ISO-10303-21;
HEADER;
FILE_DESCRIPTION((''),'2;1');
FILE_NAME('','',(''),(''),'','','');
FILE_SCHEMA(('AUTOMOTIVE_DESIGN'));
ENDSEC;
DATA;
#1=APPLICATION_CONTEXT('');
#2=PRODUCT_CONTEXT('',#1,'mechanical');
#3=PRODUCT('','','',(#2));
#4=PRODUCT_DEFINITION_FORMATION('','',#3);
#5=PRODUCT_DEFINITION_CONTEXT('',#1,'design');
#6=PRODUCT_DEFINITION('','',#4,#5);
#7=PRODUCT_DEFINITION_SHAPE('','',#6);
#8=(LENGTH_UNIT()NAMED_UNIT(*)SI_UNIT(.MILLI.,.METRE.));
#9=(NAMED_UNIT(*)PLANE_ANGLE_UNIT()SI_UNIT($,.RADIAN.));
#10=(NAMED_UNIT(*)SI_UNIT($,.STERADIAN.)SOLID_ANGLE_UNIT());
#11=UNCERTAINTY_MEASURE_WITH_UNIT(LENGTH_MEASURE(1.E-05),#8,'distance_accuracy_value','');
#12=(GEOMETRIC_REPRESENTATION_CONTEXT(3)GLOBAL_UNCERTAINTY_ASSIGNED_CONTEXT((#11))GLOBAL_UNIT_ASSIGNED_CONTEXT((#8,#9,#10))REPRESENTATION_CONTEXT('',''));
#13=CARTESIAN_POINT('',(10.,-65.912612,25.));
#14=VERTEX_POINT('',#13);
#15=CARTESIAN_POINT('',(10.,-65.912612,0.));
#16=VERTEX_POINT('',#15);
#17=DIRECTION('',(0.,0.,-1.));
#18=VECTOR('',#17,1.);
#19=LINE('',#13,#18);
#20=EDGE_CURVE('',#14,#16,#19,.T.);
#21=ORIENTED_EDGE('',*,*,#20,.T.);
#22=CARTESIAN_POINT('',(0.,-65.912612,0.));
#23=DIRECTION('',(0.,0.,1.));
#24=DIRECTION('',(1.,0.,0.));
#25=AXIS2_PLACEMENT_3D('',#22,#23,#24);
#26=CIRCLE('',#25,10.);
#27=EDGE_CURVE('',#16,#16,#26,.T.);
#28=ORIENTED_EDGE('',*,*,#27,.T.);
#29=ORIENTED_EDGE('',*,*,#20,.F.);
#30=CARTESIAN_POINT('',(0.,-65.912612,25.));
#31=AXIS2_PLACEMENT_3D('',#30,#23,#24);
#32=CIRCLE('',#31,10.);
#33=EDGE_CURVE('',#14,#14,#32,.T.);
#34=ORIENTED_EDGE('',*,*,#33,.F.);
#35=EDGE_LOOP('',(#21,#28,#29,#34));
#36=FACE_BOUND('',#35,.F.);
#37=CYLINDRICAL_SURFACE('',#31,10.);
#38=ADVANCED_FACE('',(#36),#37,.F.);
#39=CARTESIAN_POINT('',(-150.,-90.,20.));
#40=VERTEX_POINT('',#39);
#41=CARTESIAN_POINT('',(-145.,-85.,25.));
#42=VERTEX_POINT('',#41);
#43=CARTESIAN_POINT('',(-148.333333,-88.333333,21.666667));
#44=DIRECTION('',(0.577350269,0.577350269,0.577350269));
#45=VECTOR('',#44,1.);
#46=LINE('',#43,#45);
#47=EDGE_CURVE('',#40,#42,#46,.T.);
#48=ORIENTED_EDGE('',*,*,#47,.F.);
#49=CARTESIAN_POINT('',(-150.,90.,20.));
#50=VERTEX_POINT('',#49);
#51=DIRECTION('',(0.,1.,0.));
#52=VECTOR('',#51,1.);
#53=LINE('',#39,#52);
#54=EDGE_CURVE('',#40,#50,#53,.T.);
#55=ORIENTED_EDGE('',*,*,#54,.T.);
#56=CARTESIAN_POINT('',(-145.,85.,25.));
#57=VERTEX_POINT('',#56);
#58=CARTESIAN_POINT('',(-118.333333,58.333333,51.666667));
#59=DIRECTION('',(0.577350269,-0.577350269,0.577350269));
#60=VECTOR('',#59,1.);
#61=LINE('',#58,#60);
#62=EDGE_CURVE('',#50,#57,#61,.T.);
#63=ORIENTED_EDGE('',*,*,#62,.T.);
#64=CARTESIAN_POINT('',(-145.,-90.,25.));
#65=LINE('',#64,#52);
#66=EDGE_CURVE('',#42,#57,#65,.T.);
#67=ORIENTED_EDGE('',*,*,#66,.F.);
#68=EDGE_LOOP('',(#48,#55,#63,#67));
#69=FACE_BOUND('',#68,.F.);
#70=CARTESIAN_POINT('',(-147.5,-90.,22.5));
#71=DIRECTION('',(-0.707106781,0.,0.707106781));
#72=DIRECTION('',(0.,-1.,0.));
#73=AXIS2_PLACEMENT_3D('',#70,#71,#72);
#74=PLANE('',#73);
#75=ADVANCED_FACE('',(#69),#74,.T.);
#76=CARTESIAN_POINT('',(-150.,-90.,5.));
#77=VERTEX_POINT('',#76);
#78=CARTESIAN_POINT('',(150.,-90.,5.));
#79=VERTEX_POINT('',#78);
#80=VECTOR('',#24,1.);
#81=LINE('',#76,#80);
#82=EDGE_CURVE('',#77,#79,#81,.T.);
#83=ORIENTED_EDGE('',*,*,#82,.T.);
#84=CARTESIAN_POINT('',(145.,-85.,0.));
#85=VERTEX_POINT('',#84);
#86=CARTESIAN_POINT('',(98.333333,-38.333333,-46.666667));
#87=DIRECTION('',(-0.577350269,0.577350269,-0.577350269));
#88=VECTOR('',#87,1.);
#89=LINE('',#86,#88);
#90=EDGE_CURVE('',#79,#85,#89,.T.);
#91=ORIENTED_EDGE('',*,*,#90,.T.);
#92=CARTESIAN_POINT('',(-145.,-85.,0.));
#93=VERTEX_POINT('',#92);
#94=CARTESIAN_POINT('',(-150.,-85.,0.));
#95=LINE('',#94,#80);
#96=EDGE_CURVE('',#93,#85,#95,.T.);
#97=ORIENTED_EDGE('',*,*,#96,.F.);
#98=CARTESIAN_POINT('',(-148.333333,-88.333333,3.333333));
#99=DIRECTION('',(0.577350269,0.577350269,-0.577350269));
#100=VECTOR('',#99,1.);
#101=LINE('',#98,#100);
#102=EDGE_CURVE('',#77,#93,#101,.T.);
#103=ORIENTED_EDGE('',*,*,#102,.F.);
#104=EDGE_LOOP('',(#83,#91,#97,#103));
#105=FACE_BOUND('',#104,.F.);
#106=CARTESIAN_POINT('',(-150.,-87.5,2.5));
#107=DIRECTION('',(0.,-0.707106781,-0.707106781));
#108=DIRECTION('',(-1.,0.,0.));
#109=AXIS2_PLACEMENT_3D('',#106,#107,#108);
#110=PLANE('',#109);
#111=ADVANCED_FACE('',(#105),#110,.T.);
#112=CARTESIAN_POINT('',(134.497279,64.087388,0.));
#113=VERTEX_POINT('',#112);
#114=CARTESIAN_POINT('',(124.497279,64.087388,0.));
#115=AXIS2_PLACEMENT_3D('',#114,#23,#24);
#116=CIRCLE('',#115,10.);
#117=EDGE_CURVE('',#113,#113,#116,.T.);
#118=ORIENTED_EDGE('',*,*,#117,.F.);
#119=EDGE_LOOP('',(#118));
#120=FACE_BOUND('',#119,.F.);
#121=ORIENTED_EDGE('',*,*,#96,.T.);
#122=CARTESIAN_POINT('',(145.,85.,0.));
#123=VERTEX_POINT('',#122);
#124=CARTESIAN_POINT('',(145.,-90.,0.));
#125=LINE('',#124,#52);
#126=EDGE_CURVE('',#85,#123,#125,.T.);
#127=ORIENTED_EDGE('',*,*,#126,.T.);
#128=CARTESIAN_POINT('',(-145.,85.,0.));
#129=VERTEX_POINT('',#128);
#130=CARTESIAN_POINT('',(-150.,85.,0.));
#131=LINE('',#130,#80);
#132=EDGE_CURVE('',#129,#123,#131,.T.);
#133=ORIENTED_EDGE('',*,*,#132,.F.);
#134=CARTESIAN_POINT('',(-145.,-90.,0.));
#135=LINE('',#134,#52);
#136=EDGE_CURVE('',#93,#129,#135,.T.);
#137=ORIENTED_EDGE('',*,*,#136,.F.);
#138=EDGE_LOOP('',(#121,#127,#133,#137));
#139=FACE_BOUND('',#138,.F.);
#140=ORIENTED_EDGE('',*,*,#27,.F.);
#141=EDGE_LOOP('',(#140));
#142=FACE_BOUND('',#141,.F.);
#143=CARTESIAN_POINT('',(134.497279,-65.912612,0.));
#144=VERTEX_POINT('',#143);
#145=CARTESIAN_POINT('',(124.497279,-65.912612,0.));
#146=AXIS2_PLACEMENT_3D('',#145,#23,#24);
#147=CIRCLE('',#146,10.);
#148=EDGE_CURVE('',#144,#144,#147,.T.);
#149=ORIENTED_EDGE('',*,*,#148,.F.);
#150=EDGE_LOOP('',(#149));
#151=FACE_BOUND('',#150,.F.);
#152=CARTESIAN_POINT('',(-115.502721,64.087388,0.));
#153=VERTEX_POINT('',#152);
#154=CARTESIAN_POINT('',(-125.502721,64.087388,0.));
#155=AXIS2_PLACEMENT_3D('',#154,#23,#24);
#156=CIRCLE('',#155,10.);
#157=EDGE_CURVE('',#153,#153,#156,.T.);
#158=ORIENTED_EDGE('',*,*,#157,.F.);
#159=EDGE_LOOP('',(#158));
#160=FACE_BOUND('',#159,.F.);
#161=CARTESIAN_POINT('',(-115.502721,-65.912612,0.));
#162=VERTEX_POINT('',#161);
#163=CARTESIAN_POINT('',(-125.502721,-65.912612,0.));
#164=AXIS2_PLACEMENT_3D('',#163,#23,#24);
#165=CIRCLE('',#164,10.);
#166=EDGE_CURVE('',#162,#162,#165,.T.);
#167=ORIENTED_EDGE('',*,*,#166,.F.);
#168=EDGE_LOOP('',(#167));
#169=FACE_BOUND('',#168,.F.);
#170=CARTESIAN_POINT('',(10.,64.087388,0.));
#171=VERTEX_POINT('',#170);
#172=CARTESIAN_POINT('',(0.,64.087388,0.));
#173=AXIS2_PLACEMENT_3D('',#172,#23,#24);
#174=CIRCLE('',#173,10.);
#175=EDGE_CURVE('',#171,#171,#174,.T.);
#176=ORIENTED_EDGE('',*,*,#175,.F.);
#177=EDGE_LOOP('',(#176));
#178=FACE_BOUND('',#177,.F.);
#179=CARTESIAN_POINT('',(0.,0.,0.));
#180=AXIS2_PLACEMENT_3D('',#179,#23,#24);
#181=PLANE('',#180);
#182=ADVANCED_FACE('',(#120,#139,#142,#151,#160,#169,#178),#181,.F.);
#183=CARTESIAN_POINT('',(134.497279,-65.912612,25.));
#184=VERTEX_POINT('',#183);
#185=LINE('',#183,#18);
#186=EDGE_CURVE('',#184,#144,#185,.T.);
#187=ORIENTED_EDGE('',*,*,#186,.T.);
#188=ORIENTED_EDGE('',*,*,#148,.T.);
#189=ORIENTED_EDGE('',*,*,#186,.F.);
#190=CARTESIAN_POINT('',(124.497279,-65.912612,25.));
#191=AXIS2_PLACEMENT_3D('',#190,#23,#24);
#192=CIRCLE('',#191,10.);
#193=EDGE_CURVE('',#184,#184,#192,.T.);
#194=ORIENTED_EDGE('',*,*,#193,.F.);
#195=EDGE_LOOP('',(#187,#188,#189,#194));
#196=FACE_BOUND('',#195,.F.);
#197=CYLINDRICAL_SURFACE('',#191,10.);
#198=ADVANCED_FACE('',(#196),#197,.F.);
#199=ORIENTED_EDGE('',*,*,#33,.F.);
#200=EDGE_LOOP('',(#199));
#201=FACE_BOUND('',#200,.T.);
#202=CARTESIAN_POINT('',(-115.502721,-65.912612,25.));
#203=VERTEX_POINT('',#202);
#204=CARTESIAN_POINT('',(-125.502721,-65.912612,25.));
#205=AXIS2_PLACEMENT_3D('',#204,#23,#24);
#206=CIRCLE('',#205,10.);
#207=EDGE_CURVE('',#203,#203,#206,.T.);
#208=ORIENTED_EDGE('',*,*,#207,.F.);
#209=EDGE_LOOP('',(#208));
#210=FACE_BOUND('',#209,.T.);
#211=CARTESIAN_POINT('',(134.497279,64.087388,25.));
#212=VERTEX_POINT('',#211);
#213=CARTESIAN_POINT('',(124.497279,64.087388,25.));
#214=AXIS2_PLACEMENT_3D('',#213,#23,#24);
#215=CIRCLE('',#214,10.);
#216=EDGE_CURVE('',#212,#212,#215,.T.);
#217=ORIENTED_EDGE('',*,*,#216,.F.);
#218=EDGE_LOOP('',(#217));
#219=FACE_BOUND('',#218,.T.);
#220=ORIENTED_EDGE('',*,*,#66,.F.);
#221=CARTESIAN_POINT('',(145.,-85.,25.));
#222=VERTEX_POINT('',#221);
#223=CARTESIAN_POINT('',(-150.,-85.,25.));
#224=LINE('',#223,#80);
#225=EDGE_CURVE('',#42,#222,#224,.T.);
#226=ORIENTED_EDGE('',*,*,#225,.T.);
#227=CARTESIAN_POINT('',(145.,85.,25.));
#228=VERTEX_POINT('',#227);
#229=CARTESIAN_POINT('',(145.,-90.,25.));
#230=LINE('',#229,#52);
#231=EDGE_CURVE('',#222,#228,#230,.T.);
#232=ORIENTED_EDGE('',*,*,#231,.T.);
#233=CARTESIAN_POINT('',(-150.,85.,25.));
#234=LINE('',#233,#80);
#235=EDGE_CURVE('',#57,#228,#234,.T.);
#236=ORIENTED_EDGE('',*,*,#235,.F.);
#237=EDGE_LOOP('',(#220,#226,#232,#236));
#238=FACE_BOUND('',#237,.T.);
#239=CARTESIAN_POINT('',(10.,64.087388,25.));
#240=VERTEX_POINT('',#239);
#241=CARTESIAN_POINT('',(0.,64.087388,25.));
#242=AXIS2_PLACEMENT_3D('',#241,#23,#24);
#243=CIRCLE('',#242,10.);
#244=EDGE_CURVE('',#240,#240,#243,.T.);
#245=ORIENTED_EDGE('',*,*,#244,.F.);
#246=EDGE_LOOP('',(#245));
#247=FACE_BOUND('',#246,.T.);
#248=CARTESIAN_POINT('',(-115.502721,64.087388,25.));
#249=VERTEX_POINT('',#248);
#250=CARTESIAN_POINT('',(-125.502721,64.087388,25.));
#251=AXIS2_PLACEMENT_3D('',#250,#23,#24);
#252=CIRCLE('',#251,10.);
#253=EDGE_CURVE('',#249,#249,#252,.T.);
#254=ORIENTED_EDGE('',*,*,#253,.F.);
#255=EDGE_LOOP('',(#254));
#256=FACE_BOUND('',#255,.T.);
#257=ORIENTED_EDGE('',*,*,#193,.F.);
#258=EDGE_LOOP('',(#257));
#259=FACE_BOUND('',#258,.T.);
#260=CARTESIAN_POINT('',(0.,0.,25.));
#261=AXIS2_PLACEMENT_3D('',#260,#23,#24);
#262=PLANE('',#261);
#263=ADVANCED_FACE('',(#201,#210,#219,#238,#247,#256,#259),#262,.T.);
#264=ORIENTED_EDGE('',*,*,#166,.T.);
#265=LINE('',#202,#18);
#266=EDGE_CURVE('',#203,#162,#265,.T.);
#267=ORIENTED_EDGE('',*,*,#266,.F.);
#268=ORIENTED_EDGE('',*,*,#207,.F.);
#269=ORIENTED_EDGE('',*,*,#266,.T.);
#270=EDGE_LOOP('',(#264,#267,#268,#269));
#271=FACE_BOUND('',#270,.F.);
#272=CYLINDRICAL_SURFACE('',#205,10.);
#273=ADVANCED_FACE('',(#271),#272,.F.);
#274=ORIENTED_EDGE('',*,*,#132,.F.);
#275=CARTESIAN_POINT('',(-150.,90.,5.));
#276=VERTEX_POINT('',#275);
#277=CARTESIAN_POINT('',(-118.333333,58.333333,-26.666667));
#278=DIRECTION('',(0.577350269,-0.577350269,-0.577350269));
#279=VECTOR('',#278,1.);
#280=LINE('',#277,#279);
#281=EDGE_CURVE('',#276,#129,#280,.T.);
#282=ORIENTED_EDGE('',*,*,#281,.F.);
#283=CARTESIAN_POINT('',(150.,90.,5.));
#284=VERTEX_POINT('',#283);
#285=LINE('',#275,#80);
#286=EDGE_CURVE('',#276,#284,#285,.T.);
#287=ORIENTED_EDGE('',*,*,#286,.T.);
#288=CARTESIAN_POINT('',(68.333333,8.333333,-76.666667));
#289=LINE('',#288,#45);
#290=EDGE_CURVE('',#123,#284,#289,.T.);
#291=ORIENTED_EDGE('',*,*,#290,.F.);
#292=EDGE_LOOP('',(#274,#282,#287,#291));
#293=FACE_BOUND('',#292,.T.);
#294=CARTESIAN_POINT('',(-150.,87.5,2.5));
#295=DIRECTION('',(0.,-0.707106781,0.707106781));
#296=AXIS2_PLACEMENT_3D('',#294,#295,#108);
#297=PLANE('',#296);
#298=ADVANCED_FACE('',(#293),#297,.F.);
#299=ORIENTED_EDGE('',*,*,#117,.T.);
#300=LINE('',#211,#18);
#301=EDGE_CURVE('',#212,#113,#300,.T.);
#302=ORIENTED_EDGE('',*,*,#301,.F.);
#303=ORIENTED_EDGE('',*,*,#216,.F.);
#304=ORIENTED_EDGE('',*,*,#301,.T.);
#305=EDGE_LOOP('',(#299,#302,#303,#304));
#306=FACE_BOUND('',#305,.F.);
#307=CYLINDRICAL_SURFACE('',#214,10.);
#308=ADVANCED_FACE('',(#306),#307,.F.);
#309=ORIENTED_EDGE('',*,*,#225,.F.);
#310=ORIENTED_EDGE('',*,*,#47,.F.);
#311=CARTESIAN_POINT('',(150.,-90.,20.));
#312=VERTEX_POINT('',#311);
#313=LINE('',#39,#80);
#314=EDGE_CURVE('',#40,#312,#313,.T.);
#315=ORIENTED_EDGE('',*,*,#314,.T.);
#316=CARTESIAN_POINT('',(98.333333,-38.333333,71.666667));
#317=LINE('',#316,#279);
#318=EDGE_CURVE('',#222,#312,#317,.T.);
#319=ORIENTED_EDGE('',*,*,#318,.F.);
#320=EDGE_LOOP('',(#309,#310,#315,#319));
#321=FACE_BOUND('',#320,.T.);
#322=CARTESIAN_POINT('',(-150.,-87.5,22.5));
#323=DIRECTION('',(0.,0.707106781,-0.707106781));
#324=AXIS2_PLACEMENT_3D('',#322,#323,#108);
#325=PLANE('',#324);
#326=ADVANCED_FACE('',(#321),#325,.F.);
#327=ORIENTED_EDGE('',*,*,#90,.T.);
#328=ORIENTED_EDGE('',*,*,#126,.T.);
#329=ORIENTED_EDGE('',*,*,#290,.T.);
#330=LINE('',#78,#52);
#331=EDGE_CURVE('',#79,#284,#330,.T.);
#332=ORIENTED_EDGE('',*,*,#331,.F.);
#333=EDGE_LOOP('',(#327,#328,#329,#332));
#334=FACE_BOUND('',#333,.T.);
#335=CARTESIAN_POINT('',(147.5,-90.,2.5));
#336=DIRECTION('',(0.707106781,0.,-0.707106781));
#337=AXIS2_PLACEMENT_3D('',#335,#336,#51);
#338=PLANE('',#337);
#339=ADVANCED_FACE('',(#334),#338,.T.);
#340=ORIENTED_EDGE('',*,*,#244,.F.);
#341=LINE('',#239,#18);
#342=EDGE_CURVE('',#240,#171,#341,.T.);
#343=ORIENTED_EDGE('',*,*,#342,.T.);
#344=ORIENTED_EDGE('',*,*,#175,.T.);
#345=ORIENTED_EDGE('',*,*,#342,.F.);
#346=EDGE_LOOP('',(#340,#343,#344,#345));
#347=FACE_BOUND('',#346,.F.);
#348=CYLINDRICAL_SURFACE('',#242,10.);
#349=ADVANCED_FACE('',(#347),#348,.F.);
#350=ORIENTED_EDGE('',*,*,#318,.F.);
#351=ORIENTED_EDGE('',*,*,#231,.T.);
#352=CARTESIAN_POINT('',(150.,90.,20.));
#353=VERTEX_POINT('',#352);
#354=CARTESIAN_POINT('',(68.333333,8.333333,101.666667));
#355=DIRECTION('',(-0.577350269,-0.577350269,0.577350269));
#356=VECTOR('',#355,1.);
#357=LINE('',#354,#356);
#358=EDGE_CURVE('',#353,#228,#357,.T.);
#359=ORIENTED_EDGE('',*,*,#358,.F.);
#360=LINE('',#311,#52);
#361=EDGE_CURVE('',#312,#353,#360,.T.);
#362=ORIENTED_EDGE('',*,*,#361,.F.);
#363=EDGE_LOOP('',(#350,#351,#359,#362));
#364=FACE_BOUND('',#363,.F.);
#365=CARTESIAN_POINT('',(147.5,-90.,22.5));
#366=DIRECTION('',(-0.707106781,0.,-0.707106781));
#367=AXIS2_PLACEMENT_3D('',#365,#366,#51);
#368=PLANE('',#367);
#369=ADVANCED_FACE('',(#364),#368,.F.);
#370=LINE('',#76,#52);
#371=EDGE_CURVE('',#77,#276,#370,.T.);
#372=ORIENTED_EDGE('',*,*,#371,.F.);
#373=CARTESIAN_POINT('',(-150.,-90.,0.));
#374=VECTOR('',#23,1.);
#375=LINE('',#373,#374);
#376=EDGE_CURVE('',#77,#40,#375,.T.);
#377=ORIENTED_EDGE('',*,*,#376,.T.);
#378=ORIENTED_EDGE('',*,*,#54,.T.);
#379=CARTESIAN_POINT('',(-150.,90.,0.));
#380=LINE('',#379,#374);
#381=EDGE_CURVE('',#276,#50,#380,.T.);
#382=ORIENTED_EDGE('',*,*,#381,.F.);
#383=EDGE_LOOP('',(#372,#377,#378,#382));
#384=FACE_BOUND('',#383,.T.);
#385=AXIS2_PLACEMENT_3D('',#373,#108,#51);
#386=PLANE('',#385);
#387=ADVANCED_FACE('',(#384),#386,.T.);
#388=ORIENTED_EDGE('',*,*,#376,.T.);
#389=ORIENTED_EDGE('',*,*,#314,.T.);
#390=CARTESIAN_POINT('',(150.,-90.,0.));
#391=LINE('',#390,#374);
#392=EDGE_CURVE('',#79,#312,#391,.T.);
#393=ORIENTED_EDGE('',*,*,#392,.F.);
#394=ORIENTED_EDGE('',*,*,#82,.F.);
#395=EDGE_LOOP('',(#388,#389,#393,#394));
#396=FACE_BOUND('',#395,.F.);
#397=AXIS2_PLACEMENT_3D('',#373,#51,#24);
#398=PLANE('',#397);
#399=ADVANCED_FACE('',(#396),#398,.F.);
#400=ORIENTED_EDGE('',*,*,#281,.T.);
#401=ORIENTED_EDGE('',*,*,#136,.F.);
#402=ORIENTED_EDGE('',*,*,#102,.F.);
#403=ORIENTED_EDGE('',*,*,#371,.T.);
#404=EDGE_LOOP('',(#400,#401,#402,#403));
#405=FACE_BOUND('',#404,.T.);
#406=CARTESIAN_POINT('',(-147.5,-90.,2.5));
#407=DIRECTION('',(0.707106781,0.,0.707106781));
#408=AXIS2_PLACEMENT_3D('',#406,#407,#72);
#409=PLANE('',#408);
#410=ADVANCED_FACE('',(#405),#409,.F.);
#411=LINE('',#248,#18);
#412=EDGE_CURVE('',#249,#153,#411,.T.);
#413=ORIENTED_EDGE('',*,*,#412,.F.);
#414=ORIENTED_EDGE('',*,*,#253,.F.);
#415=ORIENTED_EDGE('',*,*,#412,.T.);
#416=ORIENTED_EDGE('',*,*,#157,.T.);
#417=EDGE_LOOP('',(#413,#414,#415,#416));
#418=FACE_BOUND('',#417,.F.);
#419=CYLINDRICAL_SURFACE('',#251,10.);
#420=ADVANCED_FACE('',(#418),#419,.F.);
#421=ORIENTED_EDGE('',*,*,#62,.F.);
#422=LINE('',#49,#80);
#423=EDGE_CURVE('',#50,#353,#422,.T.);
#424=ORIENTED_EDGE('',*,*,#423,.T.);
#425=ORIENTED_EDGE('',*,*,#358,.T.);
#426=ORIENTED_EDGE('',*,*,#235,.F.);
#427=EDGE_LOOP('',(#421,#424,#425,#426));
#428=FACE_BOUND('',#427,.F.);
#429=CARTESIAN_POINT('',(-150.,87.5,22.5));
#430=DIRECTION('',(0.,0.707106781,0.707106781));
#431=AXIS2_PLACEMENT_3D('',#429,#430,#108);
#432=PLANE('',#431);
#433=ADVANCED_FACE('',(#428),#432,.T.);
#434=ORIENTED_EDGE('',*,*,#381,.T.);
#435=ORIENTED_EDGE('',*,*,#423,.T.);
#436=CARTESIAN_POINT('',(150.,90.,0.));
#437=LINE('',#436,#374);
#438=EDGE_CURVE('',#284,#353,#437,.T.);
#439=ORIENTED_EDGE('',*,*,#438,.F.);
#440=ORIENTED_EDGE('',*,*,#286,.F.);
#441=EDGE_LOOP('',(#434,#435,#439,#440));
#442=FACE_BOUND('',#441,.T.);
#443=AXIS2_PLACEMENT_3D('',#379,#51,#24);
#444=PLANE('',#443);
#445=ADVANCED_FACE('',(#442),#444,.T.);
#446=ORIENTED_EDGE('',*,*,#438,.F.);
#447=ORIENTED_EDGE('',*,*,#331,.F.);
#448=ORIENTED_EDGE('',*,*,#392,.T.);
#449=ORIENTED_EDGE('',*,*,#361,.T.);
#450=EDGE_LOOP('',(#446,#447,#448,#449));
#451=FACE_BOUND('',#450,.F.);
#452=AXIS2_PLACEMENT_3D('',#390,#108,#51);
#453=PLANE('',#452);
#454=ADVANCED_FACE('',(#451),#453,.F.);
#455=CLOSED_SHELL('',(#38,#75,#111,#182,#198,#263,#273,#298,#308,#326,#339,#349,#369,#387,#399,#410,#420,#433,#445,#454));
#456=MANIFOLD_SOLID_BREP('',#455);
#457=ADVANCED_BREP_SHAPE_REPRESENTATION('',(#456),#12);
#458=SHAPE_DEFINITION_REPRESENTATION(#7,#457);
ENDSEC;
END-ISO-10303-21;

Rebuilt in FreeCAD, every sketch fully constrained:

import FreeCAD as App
import Part
import Sketcher


def edges_at(feature, points):
    """Names of the edges that pass closest to the given points."""
    edges = feature.Shape.Edges
    near = lambda p: min(range(len(edges)), key=lambda i: edges[i].distToShape(Part.Vertex(*p))[0])
    return sorted({f"Edge{near(p) + 1}" for p in points})

doc = App.newDocument("Part")
body = doc.addObject("PartDesign::Body", "Body")

# Sketch on XY plane
sketch1 = doc.addObject("Sketcher::SketchObject", "Sketch")
body.addObject(sketch1)
sketch1.AttachmentSupport = (doc.XY_Plane, [""])
sketch1.MapMode = "FlatFace"
sketch1.addGeometry([
    Part.LineSegment(App.Vector(-150, 90, 0), App.Vector(-150, -90, 0)),
    Part.LineSegment(App.Vector(-150, -90, 0), App.Vector(150, -90, 0)),
    Part.LineSegment(App.Vector(150, -90, 0), App.Vector(150, 90, 0)),
    Part.LineSegment(App.Vector(150, 90, 0), App.Vector(-150, 90, 0)),
], False)
sketch1.addConstraint([
    Sketcher.Constraint("Coincident", 0, 2, 1, 1),
    Sketcher.Constraint("Coincident", 1, 2, 2, 1),
    Sketcher.Constraint("Coincident", 2, 2, 3, 1),
    Sketcher.Constraint("Coincident", 3, 2, 0, 1),
    Sketcher.Constraint("Vertical", 0),
    Sketcher.Constraint("Horizontal", 1),
    Sketcher.Constraint("Vertical", 2),
    Sketcher.Constraint("Horizontal", 3),
    Sketcher.Constraint("Symmetric", 0, 2, 2, 2, -1, 1),
    Sketcher.Constraint("DistanceX", 1, 1, 1, 2, 300.0),
    Sketcher.Constraint("DistanceY", 0, 2, 0, 1, 180.0),
])
pad1 = doc.addObject("PartDesign::Pad", "Pad")
body.addObject(pad1)
pad1.Profile = sketch1
pad1.Length = 25

# Sketch on XY plane
sketch2 = doc.addObject("Sketcher::SketchObject", "Sketch001")
body.addObject(sketch2)
sketch2.AttachmentSupport = (doc.XY_Plane, [""])
sketch2.MapMode = "FlatFace"
sketch2.AttachmentOffset = App.Placement(App.Vector(0, 0, 25), App.Rotation())
sketch2.addGeometry([
    Part.Circle(App.Vector(0, 64.087388, 0), App.Vector(0, 0, 1), 10),  # 0
    Part.Circle(App.Vector(-125.502721, 64.087388, 0), App.Vector(0, 0, 1), 10),  # 1
    Part.Circle(App.Vector(-125.502721, -65.912612, 0), App.Vector(0, 0, 1), 10),  # 2
    Part.Circle(App.Vector(0, -65.912612, 0), App.Vector(0, 0, 1), 10),  # 3
    Part.Circle(App.Vector(124.497279, -65.912612, 0), App.Vector(0, 0, 1), 10),  # 4
    Part.Circle(App.Vector(124.497279, 64.087388, 0), App.Vector(0, 0, 1), 10),  # 5
], False)
sketch2.addConstraint([
    Sketcher.Constraint("Equal", 0, 1),
    Sketcher.Constraint("Equal", 1, 2),
    Sketcher.Constraint("Equal", 2, 3),
    Sketcher.Constraint("Equal", 3, 4),
    Sketcher.Constraint("Equal", 4, 5),
    Sketcher.Constraint("PointOnObject", 0, 3, -2),
    Sketcher.Constraint("PointOnObject", 3, 3, -2),
    Sketcher.Constraint("Horizontal", 0, 3, 1, 3),
    Sketcher.Constraint("Horizontal", 2, 3, 3, 3),
    Sketcher.Constraint("Horizontal", 3, 3, 4, 3),
    Sketcher.Constraint("Horizontal", 1, 3, 5, 3),
    Sketcher.Constraint("Vertical", 1, 3, 2, 3),
    Sketcher.Constraint("Vertical", 4, 3, 5, 3),
    Sketcher.Constraint("Diameter", 0, 20.0),
    Sketcher.Constraint("DistanceY", 2, 3, 1, 3, 130.0),
    Sketcher.Constraint("DistanceX", 2, 3, 4, 3, 250.0),
    Sketcher.Constraint("DistanceY", -1, 1, 0, 3, 64.087388),
    Sketcher.Constraint("DistanceX", 1, 3, -1, 1, 125.502721),
])
pocket1 = doc.addObject("PartDesign::Pocket", "Pocket")
body.addObject(pocket1)
pocket1.Profile = sketch2
pocket1.Type = "ThroughAll"
doc.recompute()

chamfer = doc.addObject("PartDesign::Chamfer", "Chamfer")
body.addObject(chamfer)
chamfer.Base = (pocket1, edges_at(pocket1, [
    (0, 90, 25),
    (150, 0, 25),
    (0, -90, 25),
    (-150, 0, 25),
    (0, -90, 0),
    (150, 0, 0),
    (0, 90, 0),
    (-150, 0, 0),
]))
chamfer.Size = 5

doc.recompute()
